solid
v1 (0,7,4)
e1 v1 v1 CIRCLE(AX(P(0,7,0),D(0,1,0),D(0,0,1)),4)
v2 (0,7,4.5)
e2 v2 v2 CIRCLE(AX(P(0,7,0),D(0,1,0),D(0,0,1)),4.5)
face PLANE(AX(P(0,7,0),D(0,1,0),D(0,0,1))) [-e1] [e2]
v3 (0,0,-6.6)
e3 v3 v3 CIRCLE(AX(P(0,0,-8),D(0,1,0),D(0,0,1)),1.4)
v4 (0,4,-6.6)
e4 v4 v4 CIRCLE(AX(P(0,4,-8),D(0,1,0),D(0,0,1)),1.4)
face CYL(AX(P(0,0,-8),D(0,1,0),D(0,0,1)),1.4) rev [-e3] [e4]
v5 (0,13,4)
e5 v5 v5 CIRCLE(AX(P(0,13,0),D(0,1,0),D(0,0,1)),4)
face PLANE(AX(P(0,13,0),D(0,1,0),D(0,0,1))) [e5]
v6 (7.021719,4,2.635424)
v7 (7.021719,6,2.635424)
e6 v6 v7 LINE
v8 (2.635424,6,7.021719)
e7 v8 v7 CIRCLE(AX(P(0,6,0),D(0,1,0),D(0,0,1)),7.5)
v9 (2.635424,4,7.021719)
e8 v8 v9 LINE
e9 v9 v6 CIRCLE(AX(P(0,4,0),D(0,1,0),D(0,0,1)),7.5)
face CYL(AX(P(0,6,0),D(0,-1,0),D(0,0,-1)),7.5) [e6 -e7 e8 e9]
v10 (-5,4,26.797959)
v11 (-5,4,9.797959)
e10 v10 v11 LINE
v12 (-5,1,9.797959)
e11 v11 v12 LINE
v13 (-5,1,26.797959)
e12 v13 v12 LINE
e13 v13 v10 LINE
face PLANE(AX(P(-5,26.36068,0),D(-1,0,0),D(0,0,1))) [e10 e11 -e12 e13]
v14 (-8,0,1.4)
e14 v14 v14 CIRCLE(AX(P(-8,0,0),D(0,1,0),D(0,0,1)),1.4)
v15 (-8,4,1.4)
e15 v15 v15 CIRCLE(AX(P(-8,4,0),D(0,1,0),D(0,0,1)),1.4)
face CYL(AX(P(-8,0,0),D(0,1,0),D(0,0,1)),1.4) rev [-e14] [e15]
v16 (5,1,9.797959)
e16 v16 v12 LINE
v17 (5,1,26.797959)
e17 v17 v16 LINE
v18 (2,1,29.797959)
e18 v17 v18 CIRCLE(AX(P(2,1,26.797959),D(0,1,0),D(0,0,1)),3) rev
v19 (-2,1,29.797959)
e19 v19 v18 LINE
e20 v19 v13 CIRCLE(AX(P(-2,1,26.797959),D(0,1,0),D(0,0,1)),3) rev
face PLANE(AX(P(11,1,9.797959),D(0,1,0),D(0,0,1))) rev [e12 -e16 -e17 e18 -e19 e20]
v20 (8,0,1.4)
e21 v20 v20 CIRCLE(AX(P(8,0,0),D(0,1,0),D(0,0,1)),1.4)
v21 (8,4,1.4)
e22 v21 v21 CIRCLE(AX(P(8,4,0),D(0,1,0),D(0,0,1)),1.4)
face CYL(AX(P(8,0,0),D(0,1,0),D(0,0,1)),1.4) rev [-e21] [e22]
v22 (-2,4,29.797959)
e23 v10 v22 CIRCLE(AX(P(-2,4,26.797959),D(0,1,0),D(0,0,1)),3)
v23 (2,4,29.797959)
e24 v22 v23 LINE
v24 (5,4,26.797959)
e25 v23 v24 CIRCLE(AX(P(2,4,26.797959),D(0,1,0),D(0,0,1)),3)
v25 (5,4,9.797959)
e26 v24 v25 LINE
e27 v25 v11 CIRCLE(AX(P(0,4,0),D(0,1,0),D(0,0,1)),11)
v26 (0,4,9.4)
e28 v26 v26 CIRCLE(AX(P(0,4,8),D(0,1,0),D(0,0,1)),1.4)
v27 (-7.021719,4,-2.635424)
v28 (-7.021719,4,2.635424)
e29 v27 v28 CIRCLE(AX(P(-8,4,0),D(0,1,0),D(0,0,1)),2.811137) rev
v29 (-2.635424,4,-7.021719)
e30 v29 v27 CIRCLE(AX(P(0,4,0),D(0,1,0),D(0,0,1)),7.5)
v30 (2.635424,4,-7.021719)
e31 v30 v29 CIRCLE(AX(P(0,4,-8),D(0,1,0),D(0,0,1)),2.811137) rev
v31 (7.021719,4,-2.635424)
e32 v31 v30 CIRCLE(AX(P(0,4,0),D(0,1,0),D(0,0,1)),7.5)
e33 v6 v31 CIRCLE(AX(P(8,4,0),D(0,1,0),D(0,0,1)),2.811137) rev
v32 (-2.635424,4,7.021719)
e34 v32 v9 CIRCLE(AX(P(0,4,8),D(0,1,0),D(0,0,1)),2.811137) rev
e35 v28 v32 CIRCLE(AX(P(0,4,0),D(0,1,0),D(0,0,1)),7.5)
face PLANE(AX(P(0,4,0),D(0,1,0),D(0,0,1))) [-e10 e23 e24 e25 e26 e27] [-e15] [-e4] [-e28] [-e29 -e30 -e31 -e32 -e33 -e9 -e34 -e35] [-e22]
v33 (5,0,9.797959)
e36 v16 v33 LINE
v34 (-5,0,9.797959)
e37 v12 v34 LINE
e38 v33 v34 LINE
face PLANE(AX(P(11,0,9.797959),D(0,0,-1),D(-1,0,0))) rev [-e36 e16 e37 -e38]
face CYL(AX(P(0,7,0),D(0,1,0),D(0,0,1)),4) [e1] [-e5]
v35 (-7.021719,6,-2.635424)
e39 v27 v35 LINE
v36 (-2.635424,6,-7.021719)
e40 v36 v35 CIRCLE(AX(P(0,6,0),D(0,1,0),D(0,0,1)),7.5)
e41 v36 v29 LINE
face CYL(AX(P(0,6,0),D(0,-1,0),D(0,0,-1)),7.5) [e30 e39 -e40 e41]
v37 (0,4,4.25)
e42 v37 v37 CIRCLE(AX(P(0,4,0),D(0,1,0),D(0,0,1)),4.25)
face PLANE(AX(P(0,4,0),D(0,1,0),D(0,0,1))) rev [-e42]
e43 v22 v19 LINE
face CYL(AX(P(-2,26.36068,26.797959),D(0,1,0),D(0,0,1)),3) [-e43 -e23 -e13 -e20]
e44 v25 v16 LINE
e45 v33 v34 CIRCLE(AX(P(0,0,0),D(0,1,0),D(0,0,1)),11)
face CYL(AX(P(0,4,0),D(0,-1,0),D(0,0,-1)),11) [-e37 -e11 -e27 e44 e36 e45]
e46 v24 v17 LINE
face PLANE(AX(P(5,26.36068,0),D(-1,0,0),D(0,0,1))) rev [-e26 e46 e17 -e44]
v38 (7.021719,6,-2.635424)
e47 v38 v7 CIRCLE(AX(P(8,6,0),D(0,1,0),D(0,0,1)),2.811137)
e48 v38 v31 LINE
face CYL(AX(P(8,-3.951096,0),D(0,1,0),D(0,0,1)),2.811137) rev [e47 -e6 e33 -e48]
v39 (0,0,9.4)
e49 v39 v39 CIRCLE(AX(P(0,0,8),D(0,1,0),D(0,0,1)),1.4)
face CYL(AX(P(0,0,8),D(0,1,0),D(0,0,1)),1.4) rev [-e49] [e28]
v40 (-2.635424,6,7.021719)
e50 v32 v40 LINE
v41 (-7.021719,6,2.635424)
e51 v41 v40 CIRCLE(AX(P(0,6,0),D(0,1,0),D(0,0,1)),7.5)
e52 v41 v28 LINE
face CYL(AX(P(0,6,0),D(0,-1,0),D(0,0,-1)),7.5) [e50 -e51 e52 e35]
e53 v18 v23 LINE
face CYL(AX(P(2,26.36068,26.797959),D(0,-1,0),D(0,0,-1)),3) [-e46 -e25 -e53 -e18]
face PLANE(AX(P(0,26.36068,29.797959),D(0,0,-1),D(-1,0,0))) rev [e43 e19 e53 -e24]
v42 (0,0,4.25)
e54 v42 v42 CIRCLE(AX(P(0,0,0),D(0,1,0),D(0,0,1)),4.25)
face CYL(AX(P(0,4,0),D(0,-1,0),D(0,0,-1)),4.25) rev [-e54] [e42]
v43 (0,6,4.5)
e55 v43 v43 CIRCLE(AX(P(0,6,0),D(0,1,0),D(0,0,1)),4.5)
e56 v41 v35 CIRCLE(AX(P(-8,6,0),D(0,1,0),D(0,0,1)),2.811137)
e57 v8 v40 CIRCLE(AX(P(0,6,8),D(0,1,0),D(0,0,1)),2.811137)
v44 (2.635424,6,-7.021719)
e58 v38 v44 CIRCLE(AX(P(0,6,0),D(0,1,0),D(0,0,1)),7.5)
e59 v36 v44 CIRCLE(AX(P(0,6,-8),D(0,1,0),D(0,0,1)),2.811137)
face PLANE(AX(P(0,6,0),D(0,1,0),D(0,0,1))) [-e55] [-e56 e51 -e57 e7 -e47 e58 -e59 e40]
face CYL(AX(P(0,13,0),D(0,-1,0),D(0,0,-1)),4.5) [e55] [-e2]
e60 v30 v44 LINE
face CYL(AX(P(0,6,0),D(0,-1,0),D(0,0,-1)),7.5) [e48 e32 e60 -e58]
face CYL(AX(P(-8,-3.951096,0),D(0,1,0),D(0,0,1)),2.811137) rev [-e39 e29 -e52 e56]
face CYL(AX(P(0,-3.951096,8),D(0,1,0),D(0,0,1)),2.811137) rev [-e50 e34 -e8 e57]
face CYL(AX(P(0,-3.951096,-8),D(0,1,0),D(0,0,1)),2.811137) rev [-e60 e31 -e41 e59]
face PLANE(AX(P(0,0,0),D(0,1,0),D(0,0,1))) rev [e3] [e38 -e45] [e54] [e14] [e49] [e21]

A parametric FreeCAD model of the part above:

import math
import FreeCAD as App
import Part
import Sketcher
Q = App.Units.Quantity


def edges_at(feature, points):
    """Names of the edges that pass closest to the given points."""
    edges = feature.Shape.Edges
    near = lambda p: min(range(len(edges)), key=lambda i: edges[i].distToShape(Part.Vertex(*p))[0])
    return sorted({f"Edge{near(p) + 1}" for p in points})

doc = App.newDocument("Part")
body = doc.addObject("PartDesign::Body", "Body")

sketch1 = doc.addObject("Sketcher::SketchObject", "Sketch")
body.addObject(sketch1)
sketch1.AttachmentSupport = (doc.XZ_Plane, [""])
sketch1.MapMode = "FlatFace"
sketch1.addGeometry(Part.Circle(App.Vector(0, 0, 0), App.Vector(0, 0, 1), 11), False)
sketch1.addGeometry(Part.Circle(App.Vector(0, 0, 0), App.Vector(0, 0, 1), 4.2), False)
sketch1.addConstraint(Sketcher.Constraint("Coincident", 0, 3, -1, 1))
sketch1.addConstraint(Sketcher.Constraint("Coincident", 1, 3, -1, 1))
sketch1.addConstraint(Sketcher.Constraint("Diameter", 0, Q("22 mm")))
sketch1.addConstraint(Sketcher.Constraint("Diameter", 1, Q("8.5 mm")))
pad1 = doc.addObject("PartDesign::Pad", "Pad")
body.addObject(pad1)
pad1.Profile = sketch1
pad1.Length = 4
pad1.Reversed = True

sketch2 = doc.addObject("Sketcher::SketchObject", "Sketch001")
body.addObject(sketch2)
sketch2.AttachmentSupport = (doc.XZ_Plane, [""])
sketch2.MapMode = "FlatFace"
sketch2.AttachmentOffset = App.Placement(App.Vector(0, 0, -4), App.Rotation())
sketch2.addGeometry(Part.Circle(App.Vector(0, -8, 0), App.Vector(0, 0, 1), 1.4), False)
sketch2.addGeometry(Part.Circle(App.Vector(8, 0, 0), App.Vector(0, 0, 1), 1.4), False)
sketch2.addGeometry(Part.Circle(App.Vector(0, 8, 0), App.Vector(0, 0, 1), 1.4), False)
sketch2.addGeometry(Part.Circle(App.Vector(-8, 0, 0), App.Vector(0, 0, 1), 1.4), False)
sketch2.addConstraint(Sketcher.Constraint("Equal", 0, 1))
sketch2.addConstraint(Sketcher.Constraint("Equal", 1, 2))
sketch2.addConstraint(Sketcher.Constraint("Equal", 2, 3))
sketch2.addConstraint(Sketcher.Constraint("Symmetric", 0, 3, 2, 3, -1, 1))
sketch2.addConstraint(Sketcher.Constraint("Symmetric", 1, 3, 3, 3, -1, 1))
sketch2.addConstraint(Sketcher.Constraint("PointOnObject", 0, 3, -2))
sketch2.addConstraint(Sketcher.Constraint("PointOnObject", 1, 3, -1))
sketch2.addConstraint(Sketcher.Constraint("Diameter", 0, Q("2.8 mm")))
sketch2.addConstraint(Sketcher.Constraint("DistanceY", 0, 3, -1, 1, Q("8 mm")))
sketch2.addConstraint(Sketcher.Constraint("DistanceX", -1, 1, 1, 3, Q("8 mm")))
pocket1 = doc.addObject("PartDesign::Pocket", "Pocket")
body.addObject(pocket1)
pocket1.Profile = sketch2
pocket1.Type = "ThroughAll"
pocket1.Reversed = True

sketch3 = doc.addObject("Sketcher::SketchObject", "Sketch002")
body.addObject(sketch3)
sketch3.AttachmentSupport = (doc.XZ_Plane, [""])
sketch3.MapMode = "FlatFace"
sketch3.AttachmentOffset = App.Placement(App.Vector(0, 0, -4), App.Rotation())
sketch3.addGeometry(Part.Circle(App.Vector(0, 0, 0), App.Vector(0, 0, 1), 8), False)
sketch3.addConstraint(Sketcher.Constraint("Coincident", 0, 3, -1, 1))
sketch3.addConstraint(Sketcher.Constraint("Diameter", 0, Q("15 mm")))
pad2 = doc.addObject("PartDesign::Pad", "Pad001")
body.addObject(pad2)
pad2.Profile = sketch3
pad2.Length = 2
pad2.Reversed = True

sketch4 = doc.addObject("Sketcher::SketchObject", "Sketch003")
body.addObject(sketch4)
sketch4.AttachmentSupport = (doc.XZ_Plane, [""])
sketch4.MapMode = "FlatFace"
sketch4.AttachmentOffset = App.Placement(App.Vector(0, 0, -6), App.Rotation())
sketch4.addGeometry(Part.Circle(App.Vector(8, 0, 0), App.Vector(0, 0, 1), 2.8), False)
sketch4.addGeometry(Part.Circle(App.Vector(0, 8, 0), App.Vector(0, 0, 1), 2.8), False)
sketch4.addGeometry(Part.Circle(App.Vector(-8, 0, 0), App.Vector(0, 0, 1), 2.8), False)
sketch4.addGeometry(Part.Circle(App.Vector(0, -8, 0), App.Vector(0, 0, 1), 2.8), False)
sketch4.addConstraint(Sketcher.Constraint("Equal", 0, 1))
sketch4.addConstraint(Sketcher.Constraint("Equal", 1, 2))
sketch4.addConstraint(Sketcher.Constraint("Equal", 2, 3))
sketch4.addConstraint(Sketcher.Constraint("Symmetric", 0, 3, 2, 3, -1, 1))
sketch4.addConstraint(Sketcher.Constraint("Symmetric", 1, 3, 3, 3, -1, 1))
sketch4.addConstraint(Sketcher.Constraint("PointOnObject", 0, 3, -1))
sketch4.addConstraint(Sketcher.Constraint("PointOnObject", 1, 3, -2))
sketch4.addConstraint(Sketcher.Constraint("DistanceX", -1, 1, 0, 3, Q("8 mm")))
sketch4.addConstraint(Sketcher.Constraint("DistanceY", -1, 1, 1, 3, Q("8 mm")))
sketch4.addConstraint(Sketcher.Constraint("Diameter", 0, Q("5.622274 mm")))
pocket2 = doc.addObject("PartDesign::Pocket", "Pocket001")
body.addObject(pocket2)
pocket2.Profile = sketch4
pocket2.Length = 2
pocket2.Reversed = True

sketch5 = doc.addObject("Sketcher::SketchObject", "Sketch004")
body.addObject(sketch5)
sketch5.AttachmentSupport = (doc.XZ_Plane, [""])
sketch5.MapMode = "FlatFace"
sketch5.AttachmentOffset = App.Placement(App.Vector(0, 0, -6), App.Rotation())
sketch5.addGeometry(Part.Circle(App.Vector(0, 0, 0), App.Vector(0, 0, 1), 4.5), False)
sketch5.addConstraint(Sketcher.Constraint("Coincident", 0, 3, -1, 1))
sketch5.addConstraint(Sketcher.Constraint("Diameter", 0, Q("9 mm")))
pad3 = doc.addObject("PartDesign::Pad", "Pad002")
body.addObject(pad3)
pad3.Profile = sketch5
pad3.Length = 7
pad3.Reversed = True

sketch6 = doc.addObject("Sketcher::SketchObject", "Sketch005")
body.addObject(sketch6)
sketch6.AttachmentSupport = (doc.XZ_Plane, [""])
sketch6.MapMode = "FlatFace"
sketch6.AttachmentOffset = App.Placement(App.Vector(0, 0, -7), App.Rotation())
sketch6.addGeometry(Part.Circle(App.Vector(0, 0, 0), App.Vector(0, 0, 1), 4.5), False)
sketch6.addGeometry(Part.Circle(App.Vector(0, 0, 0), App.Vector(0, 0, 1), 4), False)
sketch6.addConstraint(Sketcher.Constraint("Coincident", 0, 3, -1, 1))
sketch6.addConstraint(Sketcher.Constraint("Coincident", 1, 3, -1, 1))
sketch6.addConstraint(Sketcher.Constraint("Diameter", 0, Q("9 mm")))
sketch6.addConstraint(Sketcher.Constraint("Diameter", 1, Q("8 mm")))
pocket3 = doc.addObject("PartDesign::Pocket", "Pocket002")
body.addObject(pocket3)
pocket3.Profile = sketch6
pocket3.Length = 6

sketch7 = doc.addObject("Sketcher::SketchObject", "Sketch006")
body.addObject(sketch7)
sketch7.AttachmentSupport = (doc.XZ_Plane, [""])
sketch7.MapMode = "FlatFace"
sketch7.addGeometry(Part.LineSegment(App.Vector(5, 30, 0), App.Vector(-5, 30, 0)), False)
sketch7.addGeometry(Part.LineSegment(App.Vector(-5, 30, 0), App.Vector(-5, 10, 0)), False)
sketch7.addGeometry(Part.ArcOfCircle(Part.Circle(App.Vector(0, 0, 0), App.Vector(0, 0, 1), 11), math.radians(63), math.radians(117)), False)
sketch7.addGeometry(Part.LineSegment(App.Vector(5, 10, 0), App.Vector(5, 30, 0)), False)
sketch7.addConstraint(Sketcher.Constraint("Coincident", 0, 2, 1, 1))
sketch7.addConstraint(Sketcher.Constraint("Coincident", 1, 2, 2, 2))
sketch7.addConstraint(Sketcher.Constraint("Coincident", 2, 1, 3, 1))
sketch7.addConstraint(Sketcher.Constraint("Coincident", 3, 2, 0, 1))
sketch7.addConstraint(Sketcher.Constraint("Horizontal", 0))
sketch7.addConstraint(Sketcher.Constraint("Vertical", 1))
sketch7.addConstraint(Sketcher.Constraint("Vertical", 3))
sketch7.addConstraint(Sketcher.Constraint("Coincident", 2, 3, -1, 1))
sketch7.addConstraint(Sketcher.Constraint("Horizontal", 1, 2, 2, 1))
sketch7.addConstraint(Sketcher.Constraint("Radius", 2, Q("11 mm")))
sketch7.addConstraint(Sketcher.Constraint("DistanceX", 0, 2, 0, 1, Q("10 mm")))
sketch7.addConstraint(Sketcher.Constraint("DistanceY", 1, 2, 1, 1, Q("20 mm")))
pad4 = doc.addObject("PartDesign::Pad", "Pad003")
body.addObject(pad4)
pad4.Profile = sketch7
pad4.Length = 4
pad4.Reversed = True

sketch8 = doc.addObject("Sketcher::SketchObject", "Sketch007")
body.addObject(sketch8)
sketch8.AttachmentSupport = (doc.YZ_Plane, [""])
sketch8.MapMode = "FlatFace"
sketch8.AttachmentOffset = App.Placement(App.Vector(0, 0, -5), App.Rotation())
sketch8.addGeometry(Part.LineSegment(App.Vector(1, 9.8, 0), App.Vector(0, 9.8, 0)), False)
sketch8.addGeometry(Part.LineSegment(App.Vector(0, 9.8, 0), App.Vector(0, 29.8, 0)), False)
sketch8.addGeometry(Part.LineSegment(App.Vector(0, 29.8, 0), App.Vector(1, 29.8, 0)), False)
sketch8.addGeometry(Part.LineSegment(App.Vector(1, 29.8, 0), App.Vector(1, 9.8, 0)), False)
sketch8.addConstraint(Sketcher.Constraint("Coincident", 0, 2, 1, 1))
sketch8.addConstraint(Sketcher.Constraint("Coincident", 1, 2, 2, 1))
sketch8.addConstraint(Sketcher.Constraint("Coincident", 2, 2, 3, 1))
sketch8.addConstraint(Sketcher.Constraint("Coincident", 3, 2, 0, 1))
sketch8.addConstraint(Sketcher.Constraint("Horizontal", 0))
sketch8.addConstraint(Sketcher.Constraint("Vertical", 1))
sketch8.addConstraint(Sketcher.Constraint("Horizontal", 2))
sketch8.addConstraint(Sketcher.Constraint("Vertical", 3))
sketch8.addConstraint(Sketcher.Constraint("PointOnObject", 0, 2, -2))
sketch8.addConstraint(Sketcher.Constraint("DistanceX", 0, 2, 0, 1, Q("1 mm")))
sketch8.addConstraint(Sketcher.Constraint("DistanceY", 1, 1, 1, 2, Q("20 mm")))
sketch8.addConstraint(Sketcher.Constraint("DistanceY", -1, 1, 0, 2, Q("9.797959 mm")))
pocket4 = doc.addObject("PartDesign::Pocket", "Pocket003")
body.addObject(pocket4)
pocket4.Profile = sketch8
pocket4.Type = "ThroughAll"
pocket4.Reversed = True
doc.recompute()

fillet = doc.addObject("PartDesign::Fillet", "Fillet")
body.addObject(fillet)
fillet.Base = (pocket4, edges_at(pocket4, [(5, 2.5, 29.798), (-5, 2.5, 29.798)]))
fillet.Radius = 3

doc.recompute()
